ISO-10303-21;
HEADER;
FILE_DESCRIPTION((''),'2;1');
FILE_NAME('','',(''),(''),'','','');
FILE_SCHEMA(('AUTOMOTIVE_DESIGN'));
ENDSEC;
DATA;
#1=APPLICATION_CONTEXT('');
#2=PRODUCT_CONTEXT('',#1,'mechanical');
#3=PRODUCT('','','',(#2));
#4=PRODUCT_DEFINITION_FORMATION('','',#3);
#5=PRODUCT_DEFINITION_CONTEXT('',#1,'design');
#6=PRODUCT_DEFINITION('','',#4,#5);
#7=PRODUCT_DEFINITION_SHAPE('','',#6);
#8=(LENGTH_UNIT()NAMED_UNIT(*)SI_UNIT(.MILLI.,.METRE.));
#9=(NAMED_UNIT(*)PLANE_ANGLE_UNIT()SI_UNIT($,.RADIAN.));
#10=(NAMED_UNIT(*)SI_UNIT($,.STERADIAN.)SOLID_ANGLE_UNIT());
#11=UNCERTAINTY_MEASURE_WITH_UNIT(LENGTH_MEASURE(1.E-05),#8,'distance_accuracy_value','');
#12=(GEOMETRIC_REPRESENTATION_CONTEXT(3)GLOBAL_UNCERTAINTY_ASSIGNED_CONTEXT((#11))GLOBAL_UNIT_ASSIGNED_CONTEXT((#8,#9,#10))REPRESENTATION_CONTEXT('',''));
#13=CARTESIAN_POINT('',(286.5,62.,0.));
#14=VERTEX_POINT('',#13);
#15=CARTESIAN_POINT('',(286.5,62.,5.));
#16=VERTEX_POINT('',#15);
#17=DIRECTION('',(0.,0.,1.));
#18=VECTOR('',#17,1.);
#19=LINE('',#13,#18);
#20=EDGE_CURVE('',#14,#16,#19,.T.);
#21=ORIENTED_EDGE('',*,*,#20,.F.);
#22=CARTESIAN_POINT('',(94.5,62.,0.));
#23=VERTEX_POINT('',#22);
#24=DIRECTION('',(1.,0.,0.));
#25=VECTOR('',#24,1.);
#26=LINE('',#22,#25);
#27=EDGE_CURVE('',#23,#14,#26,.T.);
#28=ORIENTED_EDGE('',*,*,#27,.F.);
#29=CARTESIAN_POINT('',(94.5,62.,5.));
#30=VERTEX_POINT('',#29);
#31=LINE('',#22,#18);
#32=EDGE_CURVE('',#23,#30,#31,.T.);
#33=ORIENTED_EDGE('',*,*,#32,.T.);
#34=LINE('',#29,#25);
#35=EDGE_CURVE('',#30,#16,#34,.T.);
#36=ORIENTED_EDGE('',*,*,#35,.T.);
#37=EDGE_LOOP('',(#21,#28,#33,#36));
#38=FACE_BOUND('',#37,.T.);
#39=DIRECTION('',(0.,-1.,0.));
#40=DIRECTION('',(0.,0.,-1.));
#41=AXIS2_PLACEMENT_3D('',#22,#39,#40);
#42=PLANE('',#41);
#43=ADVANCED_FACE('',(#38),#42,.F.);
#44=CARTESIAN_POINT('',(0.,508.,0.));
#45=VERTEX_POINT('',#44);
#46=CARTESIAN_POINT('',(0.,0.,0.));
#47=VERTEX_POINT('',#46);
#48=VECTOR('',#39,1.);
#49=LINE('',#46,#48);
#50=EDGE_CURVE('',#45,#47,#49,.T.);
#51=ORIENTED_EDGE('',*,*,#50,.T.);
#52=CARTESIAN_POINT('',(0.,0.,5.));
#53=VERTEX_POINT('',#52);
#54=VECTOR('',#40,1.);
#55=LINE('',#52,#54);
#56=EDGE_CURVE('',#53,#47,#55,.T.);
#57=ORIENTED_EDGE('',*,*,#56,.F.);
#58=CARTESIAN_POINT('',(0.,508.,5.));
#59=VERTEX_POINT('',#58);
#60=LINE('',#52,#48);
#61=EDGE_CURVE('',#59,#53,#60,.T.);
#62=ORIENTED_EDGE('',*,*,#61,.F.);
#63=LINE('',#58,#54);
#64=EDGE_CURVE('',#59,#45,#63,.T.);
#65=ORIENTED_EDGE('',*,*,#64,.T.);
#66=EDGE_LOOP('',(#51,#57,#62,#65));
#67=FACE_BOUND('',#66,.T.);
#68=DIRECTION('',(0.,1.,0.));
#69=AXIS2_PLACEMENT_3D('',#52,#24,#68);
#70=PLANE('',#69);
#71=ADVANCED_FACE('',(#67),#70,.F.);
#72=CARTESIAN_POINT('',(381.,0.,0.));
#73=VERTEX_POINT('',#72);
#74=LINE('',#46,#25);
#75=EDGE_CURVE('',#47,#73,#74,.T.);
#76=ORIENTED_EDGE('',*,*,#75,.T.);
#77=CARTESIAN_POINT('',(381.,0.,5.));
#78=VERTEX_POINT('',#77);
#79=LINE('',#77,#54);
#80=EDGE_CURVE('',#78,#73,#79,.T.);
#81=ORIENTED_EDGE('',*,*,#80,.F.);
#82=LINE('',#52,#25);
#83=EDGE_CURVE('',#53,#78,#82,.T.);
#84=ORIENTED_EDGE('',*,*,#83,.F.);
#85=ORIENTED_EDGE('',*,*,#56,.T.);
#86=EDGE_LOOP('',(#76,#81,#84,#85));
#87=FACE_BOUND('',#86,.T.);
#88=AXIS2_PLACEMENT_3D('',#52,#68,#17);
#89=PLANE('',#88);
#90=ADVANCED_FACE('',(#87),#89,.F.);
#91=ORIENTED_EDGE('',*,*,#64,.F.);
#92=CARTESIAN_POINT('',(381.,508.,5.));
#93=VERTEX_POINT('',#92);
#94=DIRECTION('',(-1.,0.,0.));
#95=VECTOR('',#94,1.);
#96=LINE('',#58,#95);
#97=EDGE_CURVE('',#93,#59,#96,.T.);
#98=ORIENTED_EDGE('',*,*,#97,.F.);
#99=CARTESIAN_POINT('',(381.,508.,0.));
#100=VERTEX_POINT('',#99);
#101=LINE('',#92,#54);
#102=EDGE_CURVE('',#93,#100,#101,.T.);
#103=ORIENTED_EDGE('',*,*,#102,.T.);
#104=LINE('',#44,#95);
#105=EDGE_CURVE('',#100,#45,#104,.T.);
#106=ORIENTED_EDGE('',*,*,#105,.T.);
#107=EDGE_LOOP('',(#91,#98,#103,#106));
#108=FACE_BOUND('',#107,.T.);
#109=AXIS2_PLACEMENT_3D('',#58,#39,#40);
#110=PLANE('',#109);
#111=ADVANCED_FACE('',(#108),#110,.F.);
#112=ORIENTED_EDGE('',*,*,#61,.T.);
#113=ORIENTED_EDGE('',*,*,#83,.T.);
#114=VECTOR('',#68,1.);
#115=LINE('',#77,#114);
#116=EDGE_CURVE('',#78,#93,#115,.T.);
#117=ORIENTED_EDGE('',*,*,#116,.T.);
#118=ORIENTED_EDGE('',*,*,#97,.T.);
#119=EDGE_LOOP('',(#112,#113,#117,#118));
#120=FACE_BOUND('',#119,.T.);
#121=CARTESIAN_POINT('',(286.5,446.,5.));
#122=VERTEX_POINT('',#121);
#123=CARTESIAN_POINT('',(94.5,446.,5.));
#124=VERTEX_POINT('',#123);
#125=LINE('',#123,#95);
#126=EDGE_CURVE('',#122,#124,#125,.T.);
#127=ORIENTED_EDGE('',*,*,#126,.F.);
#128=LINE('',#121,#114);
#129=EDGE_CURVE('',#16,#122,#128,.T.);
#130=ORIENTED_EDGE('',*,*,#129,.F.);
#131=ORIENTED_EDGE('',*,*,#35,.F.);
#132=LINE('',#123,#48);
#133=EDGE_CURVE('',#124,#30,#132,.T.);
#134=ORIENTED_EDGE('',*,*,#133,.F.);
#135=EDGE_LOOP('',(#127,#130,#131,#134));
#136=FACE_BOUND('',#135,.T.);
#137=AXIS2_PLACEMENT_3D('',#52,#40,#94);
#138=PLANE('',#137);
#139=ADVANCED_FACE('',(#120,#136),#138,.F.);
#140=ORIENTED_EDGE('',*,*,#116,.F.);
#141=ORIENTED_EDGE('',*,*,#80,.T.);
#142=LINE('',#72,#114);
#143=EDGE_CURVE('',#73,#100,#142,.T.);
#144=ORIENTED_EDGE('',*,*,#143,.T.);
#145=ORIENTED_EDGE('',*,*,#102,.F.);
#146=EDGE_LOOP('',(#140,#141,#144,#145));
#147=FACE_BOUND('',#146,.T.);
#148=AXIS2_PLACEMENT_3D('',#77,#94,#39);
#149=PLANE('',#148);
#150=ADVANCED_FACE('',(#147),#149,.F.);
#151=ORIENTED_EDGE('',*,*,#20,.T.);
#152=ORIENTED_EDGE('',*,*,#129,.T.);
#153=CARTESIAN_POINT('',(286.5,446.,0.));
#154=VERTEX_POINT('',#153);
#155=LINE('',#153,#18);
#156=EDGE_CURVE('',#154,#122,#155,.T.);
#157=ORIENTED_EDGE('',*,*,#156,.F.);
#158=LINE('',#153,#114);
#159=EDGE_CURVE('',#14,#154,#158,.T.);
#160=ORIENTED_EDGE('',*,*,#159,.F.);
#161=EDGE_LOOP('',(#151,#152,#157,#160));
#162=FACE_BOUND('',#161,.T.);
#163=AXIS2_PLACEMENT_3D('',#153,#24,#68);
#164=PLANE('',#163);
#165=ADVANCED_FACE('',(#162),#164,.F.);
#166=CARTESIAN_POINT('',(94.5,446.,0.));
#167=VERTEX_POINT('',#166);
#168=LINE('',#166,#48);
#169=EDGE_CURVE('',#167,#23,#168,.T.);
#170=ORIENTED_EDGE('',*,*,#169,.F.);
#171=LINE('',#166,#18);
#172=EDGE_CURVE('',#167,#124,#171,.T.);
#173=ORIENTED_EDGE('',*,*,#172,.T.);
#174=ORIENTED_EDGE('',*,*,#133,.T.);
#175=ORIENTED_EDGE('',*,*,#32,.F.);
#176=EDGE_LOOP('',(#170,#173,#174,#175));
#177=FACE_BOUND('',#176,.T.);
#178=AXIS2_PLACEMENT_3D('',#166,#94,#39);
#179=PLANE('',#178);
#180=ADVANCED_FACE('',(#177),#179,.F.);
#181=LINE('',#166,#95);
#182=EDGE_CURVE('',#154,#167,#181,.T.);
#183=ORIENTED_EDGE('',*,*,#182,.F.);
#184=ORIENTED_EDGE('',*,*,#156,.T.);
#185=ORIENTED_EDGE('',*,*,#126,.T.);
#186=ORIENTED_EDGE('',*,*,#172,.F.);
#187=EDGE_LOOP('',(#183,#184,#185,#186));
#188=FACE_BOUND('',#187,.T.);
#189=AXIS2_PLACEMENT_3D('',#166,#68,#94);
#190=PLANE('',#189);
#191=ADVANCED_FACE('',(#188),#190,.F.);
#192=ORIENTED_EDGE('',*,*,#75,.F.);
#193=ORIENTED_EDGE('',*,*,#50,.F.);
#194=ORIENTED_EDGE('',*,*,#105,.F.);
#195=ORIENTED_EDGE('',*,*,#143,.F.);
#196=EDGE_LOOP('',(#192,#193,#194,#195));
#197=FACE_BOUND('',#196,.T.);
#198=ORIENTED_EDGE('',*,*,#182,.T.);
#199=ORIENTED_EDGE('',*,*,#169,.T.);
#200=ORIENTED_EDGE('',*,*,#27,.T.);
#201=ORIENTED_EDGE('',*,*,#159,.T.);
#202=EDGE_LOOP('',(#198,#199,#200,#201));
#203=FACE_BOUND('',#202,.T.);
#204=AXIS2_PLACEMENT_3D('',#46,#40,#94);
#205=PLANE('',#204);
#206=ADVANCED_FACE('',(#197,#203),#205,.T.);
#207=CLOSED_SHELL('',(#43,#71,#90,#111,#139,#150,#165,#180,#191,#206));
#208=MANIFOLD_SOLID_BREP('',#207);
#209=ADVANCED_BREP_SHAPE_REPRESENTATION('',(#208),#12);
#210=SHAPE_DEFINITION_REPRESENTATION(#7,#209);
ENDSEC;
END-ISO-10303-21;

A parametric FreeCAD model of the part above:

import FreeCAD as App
import Part
import Sketcher
Q = App.Units.Quantity

doc = App.newDocument("Part")
params = doc.addObject("Spreadsheet::Sheet", "Params")
for row, (alias, value) in enumerate([
    ("sketch1_width", "381 mm"),
    ("sketch1_height", "508 mm"),
    ("pad1_length", "5 mm"),
    ("sketch2_width", "192 mm"),
    ("sketch2_height", "384 mm"),
], start=1):
    params.set(f"A{row}", alias)
    params.set(f"B{row}", "=" + value)
    params.setAlias(f"B{row}", alias)

body = doc.addObject("PartDesign::Body", "Body")

sketch1 = doc.addObject("Sketcher::SketchObject", "Sketch")
body.addObject(sketch1)
sketch1.AttachmentSupport = (doc.XY_Plane, [""])
sketch1.MapMode = "FlatFace"
sketch1.addGeometry(Part.LineSegment(App.Vector(0, 508, 0), App.Vector(0, 0, 0)), False)
sketch1.addGeometry(Part.LineSegment(App.Vector(0, 0, 0), App.Vector(381, 0, 0)), False)
sketch1.addGeometry(Part.LineSegment(App.Vector(381, 0, 0), App.Vector(381, 508, 0)), False)
sketch1.addGeometry(Part.LineSegment(App.Vector(381, 508, 0), App.Vector(0, 508, 0)), False)
sketch1.addConstraint(Sketcher.Constraint("Coincident", 0, 2, 1, 1))
sketch1.addConstraint(Sketcher.Constraint("Coincident", 1, 2, 2, 1))
sketch1.addConstraint(Sketcher.Constraint("Coincident", 2, 2, 3, 1))
sketch1.addConstraint(Sketcher.Constraint("Coincident", 3, 2, 0, 1))
sketch1.addConstraint(Sketcher.Constraint("Vertical", 0))
sketch1.addConstraint(Sketcher.Constraint("Horizontal", 1))
sketch1.addConstraint(Sketcher.Constraint("Vertical", 2))
sketch1.addConstraint(Sketcher.Constraint("Horizontal", 3))
sketch1.addConstraint(Sketcher.Constraint("Coincident", 0, 2, -1, 1))
sketch1.addConstraint(Sketcher.Constraint("DistanceX", 1, 1, 1, 2, Q("381 mm")))
sketch1.addConstraint(Sketcher.Constraint("DistanceY", 0, 2, 0, 1, Q("508 mm")))
sketch1.setExpression("Constraints[9]", "Params.sketch1_width")
sketch1.setExpression("Constraints[10]", "Params.sketch1_height")
pad1 = doc.addObject("PartDesign::Pad", "Pad")
body.addObject(pad1)
pad1.Profile = sketch1
pad1.setExpression("Length", "Params.pad1_length")

sketch2 = doc.addObject("Sketcher::SketchObject", "Sketch001")
body.addObject(sketch2)
sketch2.AttachmentSupport = (doc.XY_Plane, [""])
sketch2.MapMode = "FlatFace"
sketch2.AttachmentOffset = App.Placement(App.Vector(0, 0, 5), App.Rotation())
sketch2.addGeometry(Part.LineSegment(App.Vector(94, 446, 0), App.Vector(94, 62, 0)), False)
sketch2.addGeometry(Part.LineSegment(App.Vector(94, 62, 0), App.Vector(286, 62, 0)), False)
sketch2.addGeometry(Part.LineSegment(App.Vector(286, 62, 0), App.Vector(286, 446, 0)), False)
sketch2.addGeometry(Part.LineSegment(App.Vector(286, 446, 0), App.Vector(94, 446, 0)), False)
sketch2.addConstraint(Sketcher.Constraint("Coincident", 0, 2, 1, 1))
sketch2.addConstraint(Sketcher.Constraint("Coincident", 1, 2, 2, 1))
sketch2.addConstraint(Sketcher.Constraint("Coincident", 2, 2, 3, 1))
sketch2.addConstraint(Sketcher.Constraint("Coincident", 3, 2, 0, 1))
sketch2.addConstraint(Sketcher.Constraint("Vertical", 0))
sketch2.addConstraint(Sketcher.Constraint("Horizontal", 1))
sketch2.addConstraint(Sketcher.Constraint("Vertical", 2))
sketch2.addConstraint(Sketcher.Constraint("Horizontal", 3))
sketch2.addConstraint(Sketcher.Constraint("DistanceX", 1, 1, 1, 2, Q("192 mm")))
sketch2.addConstraint(Sketcher.Constraint("DistanceY", 0, 2, 0, 1, Q("384 mm")))
sketch2.addConstraint(Sketcher.Constraint("DistanceY", -1, 1, 0, 2, Q("62 mm")))
sketch2.addConstraint(Sketcher.Constraint("DistanceX", -1, 1, 0, 2, Q("94.5 mm")))
sketch2.setExpression("Constraints[8]", "Params.sketch2_width")
sketch2.setExpression("Constraints[9]", "Params.sketch2_height")
pocket1 = doc.addObject("PartDesign::Pocket", "Pocket")
body.addObject(pocket1)
pocket1.Profile = sketch2
pocket1.Type = "ThroughAll"

doc.recompute()
